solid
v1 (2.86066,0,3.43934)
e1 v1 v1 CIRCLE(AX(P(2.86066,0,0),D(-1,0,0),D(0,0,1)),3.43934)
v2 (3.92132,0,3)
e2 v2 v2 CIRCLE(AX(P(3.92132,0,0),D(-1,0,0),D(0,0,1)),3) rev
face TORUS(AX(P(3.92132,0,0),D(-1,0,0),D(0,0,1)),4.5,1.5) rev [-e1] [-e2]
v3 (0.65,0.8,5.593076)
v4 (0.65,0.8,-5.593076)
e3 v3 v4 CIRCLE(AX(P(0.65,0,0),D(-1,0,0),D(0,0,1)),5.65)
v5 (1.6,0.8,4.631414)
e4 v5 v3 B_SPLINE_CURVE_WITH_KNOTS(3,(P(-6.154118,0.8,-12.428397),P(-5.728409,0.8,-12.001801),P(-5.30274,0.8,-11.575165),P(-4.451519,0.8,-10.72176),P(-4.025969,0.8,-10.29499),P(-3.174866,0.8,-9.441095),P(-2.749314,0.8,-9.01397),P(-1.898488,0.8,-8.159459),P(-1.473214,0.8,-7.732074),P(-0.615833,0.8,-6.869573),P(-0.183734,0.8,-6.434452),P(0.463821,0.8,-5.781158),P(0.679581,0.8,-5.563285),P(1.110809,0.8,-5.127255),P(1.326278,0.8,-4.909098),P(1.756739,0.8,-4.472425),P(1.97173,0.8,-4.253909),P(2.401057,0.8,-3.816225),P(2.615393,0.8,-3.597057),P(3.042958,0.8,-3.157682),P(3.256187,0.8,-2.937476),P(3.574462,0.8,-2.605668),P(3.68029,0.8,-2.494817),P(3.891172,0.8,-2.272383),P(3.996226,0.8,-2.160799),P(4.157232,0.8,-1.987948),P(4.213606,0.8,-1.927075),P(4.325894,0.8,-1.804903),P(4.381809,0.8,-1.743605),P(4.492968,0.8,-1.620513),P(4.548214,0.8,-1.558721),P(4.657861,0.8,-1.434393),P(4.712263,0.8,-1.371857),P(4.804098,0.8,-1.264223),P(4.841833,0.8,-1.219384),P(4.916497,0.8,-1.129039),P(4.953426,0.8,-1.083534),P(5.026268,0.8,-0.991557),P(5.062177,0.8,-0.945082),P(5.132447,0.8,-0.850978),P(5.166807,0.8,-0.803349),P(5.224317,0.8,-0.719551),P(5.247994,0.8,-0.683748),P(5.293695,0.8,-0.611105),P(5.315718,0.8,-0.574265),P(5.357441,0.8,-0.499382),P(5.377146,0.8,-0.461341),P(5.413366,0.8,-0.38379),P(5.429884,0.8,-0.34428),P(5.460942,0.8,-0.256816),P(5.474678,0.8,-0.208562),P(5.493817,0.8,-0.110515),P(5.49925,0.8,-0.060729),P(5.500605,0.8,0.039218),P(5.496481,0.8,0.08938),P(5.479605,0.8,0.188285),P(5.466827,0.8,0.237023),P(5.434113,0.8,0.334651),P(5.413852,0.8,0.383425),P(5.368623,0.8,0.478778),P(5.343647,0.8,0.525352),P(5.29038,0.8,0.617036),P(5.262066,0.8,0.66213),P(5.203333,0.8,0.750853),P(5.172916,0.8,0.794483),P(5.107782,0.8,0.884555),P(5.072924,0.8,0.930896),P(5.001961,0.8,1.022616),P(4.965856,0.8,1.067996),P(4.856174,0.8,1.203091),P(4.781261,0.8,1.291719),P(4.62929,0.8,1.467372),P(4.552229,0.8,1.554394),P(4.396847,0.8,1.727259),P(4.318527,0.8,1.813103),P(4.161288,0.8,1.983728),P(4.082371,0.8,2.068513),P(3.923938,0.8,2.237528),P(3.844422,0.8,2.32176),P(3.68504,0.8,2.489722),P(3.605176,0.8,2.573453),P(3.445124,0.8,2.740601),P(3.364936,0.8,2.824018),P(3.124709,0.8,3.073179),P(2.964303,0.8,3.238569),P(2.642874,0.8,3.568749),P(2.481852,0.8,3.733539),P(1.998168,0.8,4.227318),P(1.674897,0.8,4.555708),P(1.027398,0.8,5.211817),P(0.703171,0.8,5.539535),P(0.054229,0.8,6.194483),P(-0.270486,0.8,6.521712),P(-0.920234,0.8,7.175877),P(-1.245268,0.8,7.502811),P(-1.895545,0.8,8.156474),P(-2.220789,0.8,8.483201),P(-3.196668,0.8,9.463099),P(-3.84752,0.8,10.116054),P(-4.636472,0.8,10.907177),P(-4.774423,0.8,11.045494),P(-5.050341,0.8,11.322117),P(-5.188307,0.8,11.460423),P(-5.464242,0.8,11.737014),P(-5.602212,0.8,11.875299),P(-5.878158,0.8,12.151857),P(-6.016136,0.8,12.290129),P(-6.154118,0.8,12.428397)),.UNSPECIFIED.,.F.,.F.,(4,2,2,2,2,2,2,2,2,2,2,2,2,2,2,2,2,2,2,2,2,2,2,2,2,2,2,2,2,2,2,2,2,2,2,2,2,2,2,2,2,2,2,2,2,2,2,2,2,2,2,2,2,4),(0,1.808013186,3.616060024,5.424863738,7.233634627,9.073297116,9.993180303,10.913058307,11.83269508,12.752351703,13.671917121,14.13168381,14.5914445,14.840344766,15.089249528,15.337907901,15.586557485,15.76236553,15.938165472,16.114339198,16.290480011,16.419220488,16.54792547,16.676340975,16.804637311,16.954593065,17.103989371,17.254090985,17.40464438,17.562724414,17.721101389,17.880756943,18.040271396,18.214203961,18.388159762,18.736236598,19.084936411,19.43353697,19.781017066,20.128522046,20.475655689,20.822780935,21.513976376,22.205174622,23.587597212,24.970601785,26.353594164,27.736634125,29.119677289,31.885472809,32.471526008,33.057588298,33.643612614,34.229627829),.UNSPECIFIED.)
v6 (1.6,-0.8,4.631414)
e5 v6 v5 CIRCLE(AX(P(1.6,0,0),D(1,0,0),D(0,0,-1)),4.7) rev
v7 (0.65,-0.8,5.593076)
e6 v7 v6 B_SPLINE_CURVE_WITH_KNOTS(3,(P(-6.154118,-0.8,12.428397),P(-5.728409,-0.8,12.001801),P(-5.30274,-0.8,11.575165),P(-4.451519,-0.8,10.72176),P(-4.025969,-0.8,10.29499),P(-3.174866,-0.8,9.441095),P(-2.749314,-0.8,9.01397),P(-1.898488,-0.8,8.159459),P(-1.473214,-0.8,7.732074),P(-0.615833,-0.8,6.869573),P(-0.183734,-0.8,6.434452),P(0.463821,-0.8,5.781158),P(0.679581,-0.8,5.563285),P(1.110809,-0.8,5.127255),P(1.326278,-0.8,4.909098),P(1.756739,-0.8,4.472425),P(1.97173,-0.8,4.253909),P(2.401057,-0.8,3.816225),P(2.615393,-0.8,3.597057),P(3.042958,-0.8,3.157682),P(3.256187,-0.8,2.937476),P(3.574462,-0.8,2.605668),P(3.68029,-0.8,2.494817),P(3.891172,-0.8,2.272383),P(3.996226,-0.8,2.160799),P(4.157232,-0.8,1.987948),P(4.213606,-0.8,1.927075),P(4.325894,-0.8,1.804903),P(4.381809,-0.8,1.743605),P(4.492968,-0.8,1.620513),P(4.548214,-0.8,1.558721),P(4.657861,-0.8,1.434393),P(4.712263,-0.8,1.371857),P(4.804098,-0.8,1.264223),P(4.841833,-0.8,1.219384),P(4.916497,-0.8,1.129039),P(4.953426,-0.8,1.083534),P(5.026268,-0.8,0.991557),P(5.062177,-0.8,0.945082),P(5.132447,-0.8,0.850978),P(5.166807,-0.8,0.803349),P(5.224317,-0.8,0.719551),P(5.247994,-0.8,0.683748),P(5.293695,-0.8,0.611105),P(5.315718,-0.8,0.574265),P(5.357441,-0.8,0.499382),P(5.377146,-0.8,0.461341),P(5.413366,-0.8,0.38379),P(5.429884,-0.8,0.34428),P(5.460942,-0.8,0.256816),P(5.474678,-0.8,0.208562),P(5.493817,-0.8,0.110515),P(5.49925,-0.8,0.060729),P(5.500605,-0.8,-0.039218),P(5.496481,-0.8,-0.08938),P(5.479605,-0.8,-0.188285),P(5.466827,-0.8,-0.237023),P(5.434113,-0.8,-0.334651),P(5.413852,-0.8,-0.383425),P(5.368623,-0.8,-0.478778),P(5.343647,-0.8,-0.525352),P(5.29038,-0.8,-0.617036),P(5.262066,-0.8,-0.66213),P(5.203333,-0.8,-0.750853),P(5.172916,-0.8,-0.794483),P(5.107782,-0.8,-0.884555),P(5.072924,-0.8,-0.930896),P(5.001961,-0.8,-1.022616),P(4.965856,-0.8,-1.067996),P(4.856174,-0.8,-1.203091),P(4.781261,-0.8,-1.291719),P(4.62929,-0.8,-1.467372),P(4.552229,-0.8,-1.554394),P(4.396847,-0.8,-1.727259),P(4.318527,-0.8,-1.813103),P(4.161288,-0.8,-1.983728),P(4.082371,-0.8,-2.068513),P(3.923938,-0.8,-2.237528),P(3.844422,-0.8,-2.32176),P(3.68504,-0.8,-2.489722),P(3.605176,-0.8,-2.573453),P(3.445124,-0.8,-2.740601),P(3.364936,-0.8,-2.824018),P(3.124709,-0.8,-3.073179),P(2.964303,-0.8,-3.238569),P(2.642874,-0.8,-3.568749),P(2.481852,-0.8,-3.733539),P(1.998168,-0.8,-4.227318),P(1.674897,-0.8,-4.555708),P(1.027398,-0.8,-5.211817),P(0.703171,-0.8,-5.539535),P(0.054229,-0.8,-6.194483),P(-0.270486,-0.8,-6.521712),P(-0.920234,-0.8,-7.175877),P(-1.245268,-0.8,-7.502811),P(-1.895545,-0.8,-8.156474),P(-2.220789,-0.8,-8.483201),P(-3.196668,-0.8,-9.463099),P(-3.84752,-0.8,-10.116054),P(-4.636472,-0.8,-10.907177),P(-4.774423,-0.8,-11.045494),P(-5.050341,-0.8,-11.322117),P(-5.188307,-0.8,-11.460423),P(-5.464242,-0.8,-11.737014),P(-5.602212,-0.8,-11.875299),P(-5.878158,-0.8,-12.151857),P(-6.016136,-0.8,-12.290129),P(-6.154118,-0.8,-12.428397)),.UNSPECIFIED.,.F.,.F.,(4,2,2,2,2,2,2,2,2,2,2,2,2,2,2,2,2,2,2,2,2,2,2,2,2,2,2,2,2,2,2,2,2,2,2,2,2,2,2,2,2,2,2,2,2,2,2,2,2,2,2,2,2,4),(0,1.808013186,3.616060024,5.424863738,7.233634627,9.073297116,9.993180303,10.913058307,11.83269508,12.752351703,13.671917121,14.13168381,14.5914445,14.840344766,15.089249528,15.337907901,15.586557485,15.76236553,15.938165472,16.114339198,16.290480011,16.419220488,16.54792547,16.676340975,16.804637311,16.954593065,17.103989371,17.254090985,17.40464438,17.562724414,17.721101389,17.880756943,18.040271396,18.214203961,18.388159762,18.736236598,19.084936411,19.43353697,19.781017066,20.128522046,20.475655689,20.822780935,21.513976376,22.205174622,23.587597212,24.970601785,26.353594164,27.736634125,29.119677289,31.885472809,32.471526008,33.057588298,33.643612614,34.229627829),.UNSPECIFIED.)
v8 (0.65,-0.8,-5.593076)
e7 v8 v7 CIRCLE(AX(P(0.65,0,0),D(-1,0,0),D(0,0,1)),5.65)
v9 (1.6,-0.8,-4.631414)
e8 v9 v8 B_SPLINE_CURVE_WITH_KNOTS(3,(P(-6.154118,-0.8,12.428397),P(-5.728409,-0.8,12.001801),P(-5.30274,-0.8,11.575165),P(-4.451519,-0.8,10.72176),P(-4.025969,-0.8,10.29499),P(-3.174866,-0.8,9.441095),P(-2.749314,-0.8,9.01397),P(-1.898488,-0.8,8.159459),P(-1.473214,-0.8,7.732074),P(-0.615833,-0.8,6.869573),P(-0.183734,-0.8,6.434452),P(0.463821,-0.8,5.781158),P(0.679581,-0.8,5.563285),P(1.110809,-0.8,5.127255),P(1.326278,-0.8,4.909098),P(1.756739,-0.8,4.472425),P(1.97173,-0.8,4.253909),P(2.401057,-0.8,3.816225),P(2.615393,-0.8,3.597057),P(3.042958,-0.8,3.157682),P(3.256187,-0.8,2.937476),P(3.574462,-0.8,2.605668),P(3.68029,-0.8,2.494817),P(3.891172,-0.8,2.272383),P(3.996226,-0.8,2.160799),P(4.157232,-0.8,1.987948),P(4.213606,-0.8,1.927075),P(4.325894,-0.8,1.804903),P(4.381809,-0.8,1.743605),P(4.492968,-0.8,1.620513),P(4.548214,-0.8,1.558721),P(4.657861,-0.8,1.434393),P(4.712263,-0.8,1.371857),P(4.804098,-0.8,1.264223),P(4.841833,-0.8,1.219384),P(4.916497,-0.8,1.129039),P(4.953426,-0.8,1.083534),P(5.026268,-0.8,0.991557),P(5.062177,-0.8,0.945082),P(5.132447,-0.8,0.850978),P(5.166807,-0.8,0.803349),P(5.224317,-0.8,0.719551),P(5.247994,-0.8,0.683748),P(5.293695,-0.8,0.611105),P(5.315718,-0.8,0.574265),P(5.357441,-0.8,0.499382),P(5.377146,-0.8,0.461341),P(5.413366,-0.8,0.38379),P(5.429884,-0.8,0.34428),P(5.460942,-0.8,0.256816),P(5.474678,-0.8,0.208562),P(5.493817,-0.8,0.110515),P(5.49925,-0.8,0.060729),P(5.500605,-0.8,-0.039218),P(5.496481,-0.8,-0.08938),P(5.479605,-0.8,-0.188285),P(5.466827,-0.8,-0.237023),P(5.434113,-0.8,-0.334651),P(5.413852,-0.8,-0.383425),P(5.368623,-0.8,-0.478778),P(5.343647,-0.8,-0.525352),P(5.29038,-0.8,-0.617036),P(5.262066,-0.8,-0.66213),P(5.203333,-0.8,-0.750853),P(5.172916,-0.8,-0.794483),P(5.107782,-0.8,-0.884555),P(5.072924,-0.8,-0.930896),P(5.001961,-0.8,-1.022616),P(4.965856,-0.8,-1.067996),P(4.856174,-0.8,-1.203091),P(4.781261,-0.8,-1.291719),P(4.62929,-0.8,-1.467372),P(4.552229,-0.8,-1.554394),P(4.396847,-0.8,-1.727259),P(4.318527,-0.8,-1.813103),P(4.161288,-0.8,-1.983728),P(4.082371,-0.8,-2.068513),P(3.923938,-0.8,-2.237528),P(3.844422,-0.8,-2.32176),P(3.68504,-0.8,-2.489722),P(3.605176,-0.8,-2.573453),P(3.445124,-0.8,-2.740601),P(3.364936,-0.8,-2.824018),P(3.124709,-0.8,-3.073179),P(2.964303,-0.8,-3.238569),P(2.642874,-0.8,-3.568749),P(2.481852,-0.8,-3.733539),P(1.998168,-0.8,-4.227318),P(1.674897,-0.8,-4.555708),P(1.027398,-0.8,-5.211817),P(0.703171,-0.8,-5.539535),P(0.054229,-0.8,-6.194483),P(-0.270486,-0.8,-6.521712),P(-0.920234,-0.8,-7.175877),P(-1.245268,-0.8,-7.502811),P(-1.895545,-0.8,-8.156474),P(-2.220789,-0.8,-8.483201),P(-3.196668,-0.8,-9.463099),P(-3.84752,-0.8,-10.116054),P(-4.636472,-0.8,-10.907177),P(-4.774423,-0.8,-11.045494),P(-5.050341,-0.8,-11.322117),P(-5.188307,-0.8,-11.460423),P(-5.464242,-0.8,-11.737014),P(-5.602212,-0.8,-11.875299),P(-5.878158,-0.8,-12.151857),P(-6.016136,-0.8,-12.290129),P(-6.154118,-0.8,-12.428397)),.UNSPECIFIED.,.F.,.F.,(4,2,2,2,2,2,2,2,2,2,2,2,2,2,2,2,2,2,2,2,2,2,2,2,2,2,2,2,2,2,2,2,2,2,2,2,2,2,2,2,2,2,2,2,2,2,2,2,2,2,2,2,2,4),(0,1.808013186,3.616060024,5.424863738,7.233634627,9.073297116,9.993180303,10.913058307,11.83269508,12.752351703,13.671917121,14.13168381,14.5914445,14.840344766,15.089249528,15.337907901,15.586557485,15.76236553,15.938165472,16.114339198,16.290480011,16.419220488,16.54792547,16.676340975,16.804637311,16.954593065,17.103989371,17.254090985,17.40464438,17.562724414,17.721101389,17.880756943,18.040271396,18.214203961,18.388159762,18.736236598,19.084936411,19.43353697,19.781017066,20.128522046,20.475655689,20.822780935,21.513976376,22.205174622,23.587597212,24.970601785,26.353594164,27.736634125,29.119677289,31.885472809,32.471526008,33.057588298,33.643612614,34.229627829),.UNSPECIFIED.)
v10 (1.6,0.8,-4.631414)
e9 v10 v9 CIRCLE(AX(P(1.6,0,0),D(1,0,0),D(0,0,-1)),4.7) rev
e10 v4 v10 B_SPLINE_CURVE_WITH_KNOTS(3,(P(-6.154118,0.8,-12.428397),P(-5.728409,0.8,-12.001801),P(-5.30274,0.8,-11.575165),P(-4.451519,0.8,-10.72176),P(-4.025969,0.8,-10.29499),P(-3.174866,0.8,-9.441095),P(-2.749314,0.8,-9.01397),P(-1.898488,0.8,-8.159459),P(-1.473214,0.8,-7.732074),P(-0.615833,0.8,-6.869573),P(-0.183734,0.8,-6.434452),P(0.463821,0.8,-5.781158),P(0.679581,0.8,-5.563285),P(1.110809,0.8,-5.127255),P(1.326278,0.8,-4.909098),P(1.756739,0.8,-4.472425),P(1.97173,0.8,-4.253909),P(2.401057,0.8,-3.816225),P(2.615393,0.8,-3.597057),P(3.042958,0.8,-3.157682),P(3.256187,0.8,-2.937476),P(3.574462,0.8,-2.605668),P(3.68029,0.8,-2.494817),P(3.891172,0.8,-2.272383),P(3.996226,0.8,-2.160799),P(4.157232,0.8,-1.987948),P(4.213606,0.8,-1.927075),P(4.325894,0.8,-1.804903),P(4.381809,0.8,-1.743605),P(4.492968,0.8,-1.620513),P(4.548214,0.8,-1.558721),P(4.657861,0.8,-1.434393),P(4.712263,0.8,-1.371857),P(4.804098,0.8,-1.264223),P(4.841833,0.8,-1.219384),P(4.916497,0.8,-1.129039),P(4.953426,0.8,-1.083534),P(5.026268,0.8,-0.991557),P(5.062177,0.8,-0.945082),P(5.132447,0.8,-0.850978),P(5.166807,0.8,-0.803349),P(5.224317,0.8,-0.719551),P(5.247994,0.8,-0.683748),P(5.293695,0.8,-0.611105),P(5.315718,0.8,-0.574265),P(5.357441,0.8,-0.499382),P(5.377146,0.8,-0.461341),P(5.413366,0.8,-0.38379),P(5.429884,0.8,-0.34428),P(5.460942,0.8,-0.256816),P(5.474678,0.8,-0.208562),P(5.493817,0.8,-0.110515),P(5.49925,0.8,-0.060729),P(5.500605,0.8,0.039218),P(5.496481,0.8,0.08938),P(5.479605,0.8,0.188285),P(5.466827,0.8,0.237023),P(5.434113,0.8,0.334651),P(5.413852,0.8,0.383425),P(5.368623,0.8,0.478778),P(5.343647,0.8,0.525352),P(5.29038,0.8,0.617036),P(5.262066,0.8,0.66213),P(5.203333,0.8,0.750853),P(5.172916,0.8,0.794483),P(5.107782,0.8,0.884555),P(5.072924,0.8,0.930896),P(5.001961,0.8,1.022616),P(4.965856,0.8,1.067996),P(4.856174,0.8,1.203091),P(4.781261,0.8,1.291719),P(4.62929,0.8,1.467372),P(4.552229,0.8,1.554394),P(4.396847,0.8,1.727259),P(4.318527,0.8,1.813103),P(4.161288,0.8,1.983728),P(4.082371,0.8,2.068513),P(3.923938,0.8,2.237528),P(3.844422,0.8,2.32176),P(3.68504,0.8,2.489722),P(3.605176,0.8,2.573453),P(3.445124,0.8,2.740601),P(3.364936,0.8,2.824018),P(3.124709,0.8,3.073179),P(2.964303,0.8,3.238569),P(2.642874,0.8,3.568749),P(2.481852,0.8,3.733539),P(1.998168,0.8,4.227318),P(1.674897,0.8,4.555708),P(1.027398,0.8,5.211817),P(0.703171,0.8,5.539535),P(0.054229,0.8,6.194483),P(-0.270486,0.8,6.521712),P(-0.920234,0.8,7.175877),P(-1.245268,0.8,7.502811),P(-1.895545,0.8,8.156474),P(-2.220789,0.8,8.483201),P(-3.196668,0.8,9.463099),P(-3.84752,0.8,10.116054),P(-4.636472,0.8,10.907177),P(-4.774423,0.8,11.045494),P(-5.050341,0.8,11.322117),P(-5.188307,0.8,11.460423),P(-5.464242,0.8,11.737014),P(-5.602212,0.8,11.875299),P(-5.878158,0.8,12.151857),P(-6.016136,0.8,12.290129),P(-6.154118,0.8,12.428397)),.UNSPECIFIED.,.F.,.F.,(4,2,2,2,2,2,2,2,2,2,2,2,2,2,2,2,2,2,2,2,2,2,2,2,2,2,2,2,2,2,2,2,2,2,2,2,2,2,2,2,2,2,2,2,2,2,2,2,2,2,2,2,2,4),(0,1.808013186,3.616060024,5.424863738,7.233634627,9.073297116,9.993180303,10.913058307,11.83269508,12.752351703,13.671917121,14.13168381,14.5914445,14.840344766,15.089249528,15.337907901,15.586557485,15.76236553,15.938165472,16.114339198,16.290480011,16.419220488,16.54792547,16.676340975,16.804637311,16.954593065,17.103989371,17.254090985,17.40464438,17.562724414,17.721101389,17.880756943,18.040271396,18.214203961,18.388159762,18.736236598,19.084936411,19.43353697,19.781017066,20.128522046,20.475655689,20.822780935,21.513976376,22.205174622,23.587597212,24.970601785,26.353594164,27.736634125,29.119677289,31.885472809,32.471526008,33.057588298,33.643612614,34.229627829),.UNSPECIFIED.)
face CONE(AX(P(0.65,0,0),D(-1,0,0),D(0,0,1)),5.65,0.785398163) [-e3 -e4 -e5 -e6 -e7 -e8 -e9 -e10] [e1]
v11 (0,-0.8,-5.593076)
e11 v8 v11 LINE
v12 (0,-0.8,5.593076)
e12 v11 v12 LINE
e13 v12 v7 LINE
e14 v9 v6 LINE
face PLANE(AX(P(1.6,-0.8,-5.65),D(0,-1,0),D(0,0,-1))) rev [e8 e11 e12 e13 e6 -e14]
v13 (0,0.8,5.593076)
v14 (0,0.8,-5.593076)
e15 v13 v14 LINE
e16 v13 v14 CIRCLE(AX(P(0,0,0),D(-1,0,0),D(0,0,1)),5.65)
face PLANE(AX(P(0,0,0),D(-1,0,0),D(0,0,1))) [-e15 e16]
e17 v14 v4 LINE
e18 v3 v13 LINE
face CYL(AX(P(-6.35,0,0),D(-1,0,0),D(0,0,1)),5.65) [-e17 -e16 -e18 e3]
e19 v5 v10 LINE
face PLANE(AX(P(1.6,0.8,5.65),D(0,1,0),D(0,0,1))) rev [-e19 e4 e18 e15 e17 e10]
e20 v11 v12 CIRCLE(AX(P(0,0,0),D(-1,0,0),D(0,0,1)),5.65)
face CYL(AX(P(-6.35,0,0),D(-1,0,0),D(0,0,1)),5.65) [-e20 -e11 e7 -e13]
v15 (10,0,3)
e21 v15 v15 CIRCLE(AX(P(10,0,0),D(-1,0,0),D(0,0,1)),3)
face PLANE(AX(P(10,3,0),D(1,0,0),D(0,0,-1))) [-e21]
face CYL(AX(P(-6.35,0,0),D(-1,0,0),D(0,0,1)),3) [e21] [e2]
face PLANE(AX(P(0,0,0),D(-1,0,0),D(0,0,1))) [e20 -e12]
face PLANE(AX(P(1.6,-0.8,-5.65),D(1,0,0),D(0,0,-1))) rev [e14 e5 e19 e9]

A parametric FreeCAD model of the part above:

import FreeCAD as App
import Part
import Sketcher
from FreeCAD import Vector
Q = App.Units.Quantity


def edges_at(feature, points):
    """Names of the edges that pass closest to the given points."""
    edges = feature.Shape.Edges
    near = lambda p: min(range(len(edges)), key=lambda i: edges[i].distToShape(Part.Vertex(*p))[0])
    return sorted({f"Edge{near(p) + 1}" for p in points})

doc = App.newDocument("Part")
body = doc.addObject("PartDesign::Body", "Body")

sketch1 = doc.addObject("Sketcher::SketchObject", "Sketch")
body.addObject(sketch1)
sketch1.AttachmentSupport = (doc.XY_Plane, [""])
sketch1.MapMode = "FlatFace"
sketch1.addGeometry(Part.LineSegment(Vector(0, 5.7, 0), Vector(0, 0, 0)), False)
sketch1.addGeometry(Part.LineSegment(Vector(0, 0, 0), Vector(10, 0, 0)), False)
sketch1.addGeometry(Part.LineSegment(Vector(10, 0, 0), Vector(10, 3, 0)), False)
sketch1.addGeometry(Part.LineSegment(Vector(10, 3, 0), Vector(3.3, 3, 0)), False)
sketch1.addGeometry(Part.LineSegment(Vector(3.3, 3, 0), Vector(0.7, 5.7, 0)), False)
sketch1.addGeometry(Part.LineSegment(Vector(0.7, 5.7, 0), Vector(0, 5.7, 0)), False)
sketch1.addConstraint(Sketcher.Constraint("Coincident", 0, 2, 1, 1))
sketch1.addConstraint(Sketcher.Constraint("Coincident", 1, 2, 2, 1))
sketch1.addConstraint(Sketcher.Constraint("Coincident", 2, 2, 3, 1))
sketch1.addConstraint(Sketcher.Constraint("Coincident", 3, 2, 4, 1))
sketch1.addConstraint(Sketcher.Constraint("Coincident", 4, 2, 5, 1))
sketch1.addConstraint(Sketcher.Constraint("Coincident", 5, 2, 0, 1))
sketch1.addConstraint(Sketcher.Constraint("Vertical", 0))
sketch1.addConstraint(Sketcher.Constraint("Horizontal", 1))
sketch1.addConstraint(Sketcher.Constraint("Vertical", 2))
sketch1.addConstraint(Sketcher.Constraint("Horizontal", 3))
sketch1.addConstraint(Sketcher.Constraint("Horizontal", 5))
sketch1.addConstraint(Sketcher.Constraint("Coincident", 0, 2, -1, 1))
sketch1.addConstraint(Sketcher.Constraint("DistanceX", 1, 1, 1, 2, Q("10 mm")))
sketch1.addConstraint(Sketcher.Constraint("DistanceY", 2, 1, 2, 2, Q("3 mm")))
sketch1.addConstraint(Sketcher.Constraint("Angle", 4, Q("135 deg")))
sketch1.addConstraint(Sketcher.Constraint("DistanceX", 3, 2, 3, 1, Q("6.7 mm")))
sketch1.addConstraint(Sketcher.Constraint("DistanceX", 5, 2, 5, 1, Q("0.65 mm")))
revolution = doc.addObject("PartDesign::Revolution", "Revolution")
body.addObject(revolution)
revolution.Profile = sketch1
revolution.ReferenceAxis = (sketch1, ["H_Axis"])
revolution.Angle = 360
doc.recompute()

fillet = doc.addObject("PartDesign::Fillet", "Fillet")
body.addObject(fillet)
fillet.Base = (revolution, edges_at(revolution, [(3.3, 0, -3)]))
fillet.Radius = 1.5

sketch2 = doc.addObject("Sketcher::SketchObject", "Sketch001")
body.addObject(sketch2)
sketch2.AttachmentSupport = (doc.YZ_Plane, [""])
sketch2.MapMode = "FlatFace"
sketch2.addGeometry(Part.LineSegment(Vector(0.8, -5.7, 0), Vector(-0.8, -5.7, 0)), False)
sketch2.addGeometry(Part.LineSegment(Vector(-0.8, -5.7, 0), Vector(-0.8, 5.7, 0)), False)
sketch2.addGeometry(Part.LineSegment(Vector(-0.8, 5.7, 0), Vector(0.8, 5.7, 0)), False)
sketch2.addGeometry(Part.LineSegment(Vector(0.8, 5.7, 0), Vector(0.8, -5.7, 0)), False)
sketch2.addConstraint(Sketcher.Constraint("Coincident", 0, 2, 1, 1))
sketch2.addConstraint(Sketcher.Constraint("Coincident", 1, 2, 2, 1))
sketch2.addConstraint(Sketcher.Constraint("Coincident", 2, 2, 3, 1))
sketch2.addConstraint(Sketcher.Constraint("Coincident", 3, 2, 0, 1))
sketch2.addConstraint(Sketcher.Constraint("Horizontal", 0))
sketch2.addConstraint(Sketcher.Constraint("Vertical", 1))
sketch2.addConstraint(Sketcher.Constraint("Horizontal", 2))
sketch2.addConstraint(Sketcher.Constraint("Vertical", 3))
sketch2.addConstraint(Sketcher.Constraint("Symmetric", 0, 2, 2, 2, -1, 1))
sketch2.addConstraint(Sketcher.Constraint("DistanceX", 0, 2, 0, 1, Q("1.6 mm")))
sketch2.addConstraint(Sketcher.Constraint("DistanceY", 1, 1, 1, 2, Q("11.3 mm")))
pocket1 = doc.addObject("PartDesign::Pocket", "Pocket")
body.addObject(pocket1)
pocket1.Profile = sketch2
pocket1.Length = 1.6
pocket1.Reversed = True

doc.recompute()
